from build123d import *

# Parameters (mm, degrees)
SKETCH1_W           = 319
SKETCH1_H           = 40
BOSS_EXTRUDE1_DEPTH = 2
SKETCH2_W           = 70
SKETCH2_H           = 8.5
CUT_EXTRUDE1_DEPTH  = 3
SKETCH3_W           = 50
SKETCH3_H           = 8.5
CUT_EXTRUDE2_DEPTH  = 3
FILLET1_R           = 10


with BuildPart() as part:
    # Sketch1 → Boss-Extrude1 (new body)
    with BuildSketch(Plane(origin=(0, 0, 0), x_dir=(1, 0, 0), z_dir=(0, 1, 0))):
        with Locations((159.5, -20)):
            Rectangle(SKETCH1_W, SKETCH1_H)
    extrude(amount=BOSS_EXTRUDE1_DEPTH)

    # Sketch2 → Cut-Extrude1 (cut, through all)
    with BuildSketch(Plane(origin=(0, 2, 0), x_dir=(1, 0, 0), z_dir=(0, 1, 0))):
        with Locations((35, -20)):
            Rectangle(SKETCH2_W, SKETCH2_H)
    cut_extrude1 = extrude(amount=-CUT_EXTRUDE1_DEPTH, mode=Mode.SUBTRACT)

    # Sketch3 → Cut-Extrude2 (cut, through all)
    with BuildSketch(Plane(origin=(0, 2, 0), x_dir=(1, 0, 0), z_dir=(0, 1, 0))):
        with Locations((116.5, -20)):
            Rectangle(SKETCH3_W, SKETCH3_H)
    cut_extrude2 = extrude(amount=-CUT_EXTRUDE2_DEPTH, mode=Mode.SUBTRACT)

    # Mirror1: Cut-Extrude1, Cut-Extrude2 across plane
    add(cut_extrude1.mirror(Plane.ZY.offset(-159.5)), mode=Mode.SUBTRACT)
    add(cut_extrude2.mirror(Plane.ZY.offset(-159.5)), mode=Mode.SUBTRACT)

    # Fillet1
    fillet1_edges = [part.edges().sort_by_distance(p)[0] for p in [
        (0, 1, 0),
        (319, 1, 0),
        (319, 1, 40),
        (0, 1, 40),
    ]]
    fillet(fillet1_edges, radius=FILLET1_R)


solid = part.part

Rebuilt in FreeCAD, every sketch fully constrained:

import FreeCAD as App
import Part
import Sketcher

V = App.Vector
Q = App.Units.Quantity


def edges_at(feature, points):
    """Names of the edges that pass closest to the given points."""
    edges = feature.Shape.Edges
    near = lambda p: min(range(len(edges)), key=lambda i: edges[i].distToShape(Part.Vertex(*p))[0])
    return sorted({f"Edge{near(p) + 1}" for p in points})

doc = App.newDocument("Part")
params = doc.addObject("Spreadsheet::Sheet", "Params")
for row, (alias, value) in enumerate([
    ("sketch1_width", "319 mm"),
    ("sketch1_height", "40 mm"),
    ("pad1_length", "2 mm"),
    ("sketch2_width", "70 mm"),
    ("sketch2_height", "8.5 mm"),
    ("sketch3_width", "50 mm"),
    ("sketch3_height", "8.5 mm"),
    ("fillet_radius", "10 mm"),
], start=1):
    params.set(f"A{row}", alias)
    params.set(f"B{row}", "=" + value)
    params.setAlias(f"B{row}", alias)

body = doc.addObject("PartDesign::Body", "Body")

# Sketch on XZ plane
sketch1 = body.newObject("Sketcher::SketchObject", "Sketch")
sketch1.AttachmentSupport = (doc.getObject("XZ_Plane"), [""])
sketch1.MapMode = "FlatFace"
sketch1.addGeometry([
    Part.LineSegment(V(0, 0, 0), V(0, 40, 0)),
    Part.LineSegment(V(0, 40, 0), V(319, 40, 0)),
    Part.LineSegment(V(319, 40, 0), V(319, 0, 0)),
    Part.LineSegment(V(319, 0, 0), V(0, 0, 0)),
], False)
sketch1.addConstraint([
    Sketcher.Constraint("Coincident", 0, 2, 1, 1),
    Sketcher.Constraint("Coincident", 1, 2, 2, 1),
    Sketcher.Constraint("Coincident", 2, 2, 3, 1),
    Sketcher.Constraint("Coincident", 3, 2, 0, 1),
    Sketcher.Constraint("Vertical", 0),
    Sketcher.Constraint("Horizontal", 1),
    Sketcher.Constraint("Vertical", 2),
    Sketcher.Constraint("Horizontal", 3),
    Sketcher.Constraint("Coincident", 3, 2, -1, 1),
    Sketcher.Constraint("DistanceX", 1, 1, 1, 2, Q("319 mm")),
    Sketcher.Constraint("DistanceY", 0, 1, 0, 2, Q("40 mm")),
])
sketch1.setExpression("Constraints[9]", "Params.sketch1_width")
sketch1.setExpression("Constraints[10]", "Params.sketch1_height")
pad1 = body.newObject("PartDesign::Pad", "Pad")
pad1.Profile = sketch1
pad1.setExpression("Length", "Params.pad1_length")
pad1.Reversed = True

# Sketch on XZ plane
sketch2 = body.newObject("Sketcher::SketchObject", "Sketch001")
sketch2.AttachmentSupport = (doc.getObject("XZ_Plane"), [""])
sketch2.MapMode = "FlatFace"
sketch2.AttachmentOffset = App.Placement(V(0, 0, -2), App.Rotation())
sketch2.addGeometry([
    Part.LineSegment(V(0, 15.75, 0), V(0, 24.25, 0)),
    Part.LineSegment(V(0, 24.25, 0), V(70, 24.25, 0)),
    Part.LineSegment(V(70, 24.25, 0), V(70, 15.75, 0)),
    Part.LineSegment(V(70, 15.75, 0), V(0, 15.75, 0)),
], False)
sketch2.addConstraint([
    Sketcher.Constraint("Coincident", 0, 2, 1, 1),
    Sketcher.Constraint("Coincident", 1, 2, 2, 1),
    Sketcher.Constraint("Coincident", 2, 2, 3, 1),
    Sketcher.Constraint("Coincident", 3, 2, 0, 1),
    Sketcher.Constraint("Vertical", 0),
    Sketcher.Constraint("Horizontal", 1),
    Sketcher.Constraint("Vertical", 2),
    Sketcher.Constraint("Horizontal", 3),
    Sketcher.Constraint("PointOnObject", 0, 2, -2),
    Sketcher.Constraint("DistanceX", 1, 1, 1, 2, Q("70 mm")),
    Sketcher.Constraint("DistanceY", 0, 1, 0, 2, Q("8.5 mm")),
    Sketcher.Constraint("DistanceY", -1, 1, 0, 2, Q("24.25 mm")),
])
sketch2.setExpression("Constraints[9]", "Params.sketch2_width")
sketch2.setExpression("Constraints[10]", "Params.sketch2_height")
pocket1 = body.newObject("PartDesign::Pocket", "Pocket")
pocket1.Profile = sketch2
pocket1.Type = "ThroughAll"
pocket1.Reversed = True

# Sketch on XZ plane
sketch3 = body.newObject("Sketcher::SketchObject", "Sketch002")
sketch3.AttachmentSupport = (doc.getObject("XZ_Plane"), [""])
sketch3.MapMode = "FlatFace"
sketch3.AttachmentOffset = App.Placement(V(0, 0, -2), App.Rotation())
sketch3.addGeometry([
    Part.LineSegment(V(91.5, 15.75, 0), V(91.5, 24.25, 0)),
    Part.LineSegment(V(91.5, 24.25, 0), V(141.5, 24.25, 0)),
    Part.LineSegment(V(141.5, 24.25, 0), V(141.5, 15.75, 0)),
    Part.LineSegment(V(141.5, 15.75, 0), V(91.5, 15.75, 0)),
], False)
sketch3.addConstraint([
    Sketcher.Constraint("Coincident", 0, 2, 1, 1),
    Sketcher.Constraint("Coincident", 1, 2, 2, 1),
    Sketcher.Constraint("Coincident", 2, 2, 3, 1),
    Sketcher.Constraint("Coincident", 3, 2, 0, 1),
    Sketcher.Constraint("Vertical", 0),
    Sketcher.Constraint("Horizontal", 1),
    Sketcher.Constraint("Vertical", 2),
    Sketcher.Constraint("Horizontal", 3),
    Sketcher.Constraint("DistanceX", 1, 1, 1, 2, Q("50 mm")),
    Sketcher.Constraint("DistanceY", 0, 1, 0, 2, Q("8.5 mm")),
    Sketcher.Constraint("DistanceX", -1, 1, 0, 2, Q("91.5 mm")),
    Sketcher.Constraint("DistanceY", -1, 1, 0, 2, Q("24.25 mm")),
])
sketch3.setExpression("Constraints[8]", "Params.sketch3_width")
sketch3.setExpression("Constraints[9]", "Params.sketch3_height")
pocket2 = body.newObject("PartDesign::Pocket", "Pocket001")
pocket2.Profile = sketch3
pocket2.Type = "ThroughAll"
pocket2.Reversed = True
doc.recompute()

datumplane = body.newObject("PartDesign::Plane", "DatumPlane")
datumplane.AttachmentSupport = (doc.getObject("YZ_Plane"), [""])
datumplane.MapMode = "FlatFace"
datumplane.AttachmentOffset = App.Placement(V(0, 0, 159.5), App.Rotation())
mirrored = body.newObject("PartDesign::Mirrored", "Mirrored")
mirrored.Originals = [pocket1, pocket2]
mirrored.MirrorPlane = (datumplane, [""])
body.Tip = mirrored
doc.recompute()

fillet = body.newObject("PartDesign::Fillet", "Fillet")
fillet.Base = (mirrored, edges_at(mirrored, [
    (0, 1, 0),
    (319, 1, 0),
    (319, 1, 40),
    (0, 1, 40),
]))
fillet.setExpression("Radius", "Params.fillet_radius")

doc.recompute()
